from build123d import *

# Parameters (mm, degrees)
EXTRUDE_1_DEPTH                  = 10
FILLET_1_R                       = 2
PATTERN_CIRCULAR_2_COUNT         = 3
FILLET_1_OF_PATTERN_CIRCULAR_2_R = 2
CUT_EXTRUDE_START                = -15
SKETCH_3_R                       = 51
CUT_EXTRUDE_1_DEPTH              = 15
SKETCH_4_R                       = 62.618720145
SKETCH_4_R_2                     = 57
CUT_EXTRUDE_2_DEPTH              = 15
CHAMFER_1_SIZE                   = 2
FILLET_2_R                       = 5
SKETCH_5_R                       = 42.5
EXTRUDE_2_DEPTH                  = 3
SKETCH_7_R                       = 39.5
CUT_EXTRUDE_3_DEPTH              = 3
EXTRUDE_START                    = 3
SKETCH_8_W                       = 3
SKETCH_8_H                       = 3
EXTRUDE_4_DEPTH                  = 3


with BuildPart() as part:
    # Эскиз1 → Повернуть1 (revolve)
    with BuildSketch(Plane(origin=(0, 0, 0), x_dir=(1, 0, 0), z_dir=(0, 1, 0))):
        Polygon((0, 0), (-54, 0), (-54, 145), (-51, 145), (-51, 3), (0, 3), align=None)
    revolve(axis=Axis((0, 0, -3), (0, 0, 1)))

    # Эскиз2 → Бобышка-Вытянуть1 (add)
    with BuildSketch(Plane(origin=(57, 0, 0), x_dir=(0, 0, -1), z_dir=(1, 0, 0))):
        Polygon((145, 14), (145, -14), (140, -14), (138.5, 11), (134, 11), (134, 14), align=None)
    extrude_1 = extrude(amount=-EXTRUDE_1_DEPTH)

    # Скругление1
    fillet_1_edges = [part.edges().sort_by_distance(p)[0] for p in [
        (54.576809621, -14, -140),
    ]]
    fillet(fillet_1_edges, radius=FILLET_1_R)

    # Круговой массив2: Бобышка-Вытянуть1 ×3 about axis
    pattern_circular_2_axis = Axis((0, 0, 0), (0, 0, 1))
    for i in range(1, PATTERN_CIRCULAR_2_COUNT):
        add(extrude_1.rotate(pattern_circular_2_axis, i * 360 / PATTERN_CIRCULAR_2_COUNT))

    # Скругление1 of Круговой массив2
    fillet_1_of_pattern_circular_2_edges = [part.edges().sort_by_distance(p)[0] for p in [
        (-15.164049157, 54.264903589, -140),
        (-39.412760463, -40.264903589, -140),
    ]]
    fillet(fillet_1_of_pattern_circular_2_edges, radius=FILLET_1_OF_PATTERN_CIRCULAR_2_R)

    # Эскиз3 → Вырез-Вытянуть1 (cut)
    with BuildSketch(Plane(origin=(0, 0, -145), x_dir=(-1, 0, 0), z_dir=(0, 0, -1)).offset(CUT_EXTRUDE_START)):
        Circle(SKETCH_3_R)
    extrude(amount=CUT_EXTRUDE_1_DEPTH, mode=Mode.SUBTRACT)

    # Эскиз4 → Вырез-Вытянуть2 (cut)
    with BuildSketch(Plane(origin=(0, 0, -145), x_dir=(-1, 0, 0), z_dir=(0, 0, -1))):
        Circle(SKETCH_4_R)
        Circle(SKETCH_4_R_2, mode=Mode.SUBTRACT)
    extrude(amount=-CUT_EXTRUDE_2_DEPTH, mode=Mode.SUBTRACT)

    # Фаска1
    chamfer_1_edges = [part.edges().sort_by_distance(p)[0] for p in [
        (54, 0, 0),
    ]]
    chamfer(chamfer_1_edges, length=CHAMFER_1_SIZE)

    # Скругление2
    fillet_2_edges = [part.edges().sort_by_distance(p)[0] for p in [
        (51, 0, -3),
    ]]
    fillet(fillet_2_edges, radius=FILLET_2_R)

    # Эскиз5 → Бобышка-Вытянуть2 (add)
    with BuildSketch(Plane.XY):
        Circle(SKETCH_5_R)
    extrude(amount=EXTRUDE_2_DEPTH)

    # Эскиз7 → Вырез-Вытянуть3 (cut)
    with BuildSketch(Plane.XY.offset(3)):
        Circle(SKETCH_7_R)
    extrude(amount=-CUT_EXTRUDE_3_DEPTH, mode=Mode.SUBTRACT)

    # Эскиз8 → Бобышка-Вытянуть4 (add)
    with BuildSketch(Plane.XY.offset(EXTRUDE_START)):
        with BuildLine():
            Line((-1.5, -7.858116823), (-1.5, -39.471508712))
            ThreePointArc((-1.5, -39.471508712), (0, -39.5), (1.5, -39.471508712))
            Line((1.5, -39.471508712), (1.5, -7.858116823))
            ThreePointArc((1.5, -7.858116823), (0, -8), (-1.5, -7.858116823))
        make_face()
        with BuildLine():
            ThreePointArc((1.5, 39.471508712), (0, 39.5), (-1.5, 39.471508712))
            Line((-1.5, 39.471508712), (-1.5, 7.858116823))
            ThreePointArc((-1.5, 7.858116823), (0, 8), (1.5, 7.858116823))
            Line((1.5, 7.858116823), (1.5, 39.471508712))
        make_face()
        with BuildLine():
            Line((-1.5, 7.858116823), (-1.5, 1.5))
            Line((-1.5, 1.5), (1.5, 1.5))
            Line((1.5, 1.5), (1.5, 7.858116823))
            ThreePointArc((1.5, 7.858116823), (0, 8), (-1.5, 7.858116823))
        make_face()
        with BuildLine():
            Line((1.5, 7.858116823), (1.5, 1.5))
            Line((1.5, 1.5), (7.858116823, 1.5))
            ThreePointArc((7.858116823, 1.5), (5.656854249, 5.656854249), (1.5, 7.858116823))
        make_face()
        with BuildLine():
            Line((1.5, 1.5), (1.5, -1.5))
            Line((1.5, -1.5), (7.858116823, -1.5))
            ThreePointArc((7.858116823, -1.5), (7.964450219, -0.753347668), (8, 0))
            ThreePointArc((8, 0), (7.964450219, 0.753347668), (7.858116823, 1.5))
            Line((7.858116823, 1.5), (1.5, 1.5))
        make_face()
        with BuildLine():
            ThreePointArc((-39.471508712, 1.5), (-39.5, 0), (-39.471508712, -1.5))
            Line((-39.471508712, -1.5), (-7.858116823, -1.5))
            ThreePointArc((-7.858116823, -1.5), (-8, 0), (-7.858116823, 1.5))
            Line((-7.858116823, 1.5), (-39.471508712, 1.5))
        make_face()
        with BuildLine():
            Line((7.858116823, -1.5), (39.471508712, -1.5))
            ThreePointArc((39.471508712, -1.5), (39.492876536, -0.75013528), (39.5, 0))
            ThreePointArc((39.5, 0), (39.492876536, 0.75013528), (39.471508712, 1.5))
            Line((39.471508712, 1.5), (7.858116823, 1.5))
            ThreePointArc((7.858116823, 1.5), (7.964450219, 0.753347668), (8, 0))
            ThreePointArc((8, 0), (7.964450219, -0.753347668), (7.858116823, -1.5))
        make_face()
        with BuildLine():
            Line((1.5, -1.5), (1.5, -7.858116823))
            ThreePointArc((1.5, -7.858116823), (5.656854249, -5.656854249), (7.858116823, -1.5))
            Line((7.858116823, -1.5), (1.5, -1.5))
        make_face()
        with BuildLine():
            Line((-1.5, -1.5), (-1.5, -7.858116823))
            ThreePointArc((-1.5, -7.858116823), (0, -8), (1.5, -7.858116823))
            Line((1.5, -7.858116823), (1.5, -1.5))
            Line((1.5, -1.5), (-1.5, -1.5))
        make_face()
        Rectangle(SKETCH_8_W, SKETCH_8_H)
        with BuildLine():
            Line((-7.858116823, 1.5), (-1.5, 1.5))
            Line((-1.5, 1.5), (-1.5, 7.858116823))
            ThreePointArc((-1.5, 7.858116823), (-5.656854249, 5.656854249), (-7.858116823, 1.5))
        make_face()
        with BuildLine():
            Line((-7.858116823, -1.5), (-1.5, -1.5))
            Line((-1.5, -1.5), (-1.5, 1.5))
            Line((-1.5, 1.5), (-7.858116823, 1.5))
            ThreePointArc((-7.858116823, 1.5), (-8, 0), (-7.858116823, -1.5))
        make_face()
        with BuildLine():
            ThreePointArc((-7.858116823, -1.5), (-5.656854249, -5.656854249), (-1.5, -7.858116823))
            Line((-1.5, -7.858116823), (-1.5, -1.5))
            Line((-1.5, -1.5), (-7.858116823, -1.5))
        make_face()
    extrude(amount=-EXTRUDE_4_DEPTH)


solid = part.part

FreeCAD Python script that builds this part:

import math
import FreeCAD as App
import Part
import Sketcher
from FreeCAD import Vector


def edges_at(feature, points):
    """Names of the edges that pass closest to the given points."""
    edges = feature.Shape.Edges
    near = lambda p: min(range(len(edges)), key=lambda i: edges[i].distToShape(Part.Vertex(*p))[0])
    return sorted({f"Edge{near(p) + 1}" for p in points})

doc = App.newDocument("Part")
body = doc.addObject("PartDesign::Body", "Body")

# Sketch on XZ plane
sketch1 = body.newObject("Sketcher::SketchObject", "Sketch")
sketch1.AttachmentSupport = (doc.getObject("XZ_Plane"), [""])
sketch1.MapMode = "FlatFace"
sketch1.addGeometry(Part.LineSegment(Vector(-54, 0, 0), Vector(0, 0, 0)), False)
sketch1.addGeometry(Part.LineSegment(Vector(0, 0, 0), Vector(0, -3, 0)), False)
sketch1.addGeometry(Part.LineSegment(Vector(0, -3, 0), Vector(-51, -3, 0)), False)
sketch1.addGeometry(Part.LineSegment(Vector(-51, -3, 0), Vector(-51, -145, 0)), False)
sketch1.addGeometry(Part.LineSegment(Vector(-51, -145, 0), Vector(-54, -145, 0)), False)
sketch1.addGeometry(Part.LineSegment(Vector(-54, -145, 0), Vector(-54, 0, 0)), False)
sketch1.addConstraint(Sketcher.Constraint("Coincident", 0, 2, 1, 1))
sketch1.addConstraint(Sketcher.Constraint("Coincident", 1, 2, 2, 1))
sketch1.addConstraint(Sketcher.Constraint("Coincident", 2, 2, 3, 1))
sketch1.addConstraint(Sketcher.Constraint("Coincident", 3, 2, 4, 1))
sketch1.addConstraint(Sketcher.Constraint("Coincident", 4, 2, 5, 1))
sketch1.addConstraint(Sketcher.Constraint("Coincident", 5, 2, 0, 1))
sketch1.addConstraint(Sketcher.Constraint("Horizontal", 0))
sketch1.addConstraint(Sketcher.Constraint("Vertical", 1))
sketch1.addConstraint(Sketcher.Constraint("Horizontal", 2))
sketch1.addConstraint(Sketcher.Constraint("Vertical", 3))
sketch1.addConstraint(Sketcher.Constraint("Horizontal", 4))
sketch1.addConstraint(Sketcher.Constraint("Vertical", 5))
sketch1.addConstraint(Sketcher.Constraint("Coincident", 0, 2, -1, 1))
sketch1.addConstraint(Sketcher.Constraint("Equal", 4, 1))
sketch1.addConstraint(Sketcher.Constraint("DistanceX", 0, 1, 0, 2, 54.0))
sketch1.addConstraint(Sketcher.Constraint("DistanceX", 2, 2, 2, 1, 51.0))
sketch1.addConstraint(Sketcher.Constraint("DistanceY", 3, 2, 3, 1, 142.0))
revolution = body.newObject("PartDesign::Revolution", "Revolution")
revolution.Profile = sketch1
revolution.ReferenceAxis = (sketch1, ["V_Axis"])
revolution.Angle = 360

# Sketch on YZ plane
sketch2 = body.newObject("Sketcher::SketchObject", "Sketch001")
sketch2.AttachmentSupport = (doc.getObject("YZ_Plane"), [""])
sketch2.MapMode = "FlatFace"
sketch2.AttachmentOffset = App.Placement(Vector(0, 0, 57), App.Rotation())
sketch2.addGeometry(Part.LineSegment(Vector(-14, -145, 0), Vector(14, -145, 0)), False)
sketch2.addGeometry(Part.LineSegment(Vector(14, -145, 0), Vector(14, -134, 0)), False)
sketch2.addGeometry(Part.LineSegment(Vector(14, -134, 0), Vector(11, -134, 0)), False)
sketch2.addGeometry(Part.LineSegment(Vector(11, -134, 0), Vector(11, -138.5, 0)), False)
sketch2.addGeometry(Part.LineSegment(Vector(11, -138.5, 0), Vector(-14, -140, 0)), False)
sketch2.addGeometry(Part.LineSegment(Vector(-14, -140, 0), Vector(-14, -145, 0)), False)
sketch2.addConstraint(Sketcher.Constraint("Coincident", 0, 2, 1, 1))
sketch2.addConstraint(Sketcher.Constraint("Coincident", 1, 2, 2, 1))
sketch2.addConstraint(Sketcher.Constraint("Coincident", 2, 2, 3, 1))
sketch2.addConstraint(Sketcher.Constraint("Coincident", 3, 2, 4, 1))
sketch2.addConstraint(Sketcher.Constraint("Coincident", 4, 2, 5, 1))
sketch2.addConstraint(Sketcher.Constraint("Coincident", 5, 2, 0, 1))
sketch2.addConstraint(Sketcher.Constraint("Horizontal", 0))
sketch2.addConstraint(Sketcher.Constraint("Vertical", 1))
sketch2.addConstraint(Sketcher.Constraint("Horizontal", 2))
sketch2.addConstraint(Sketcher.Constraint("Vertical", 3))
sketch2.addConstraint(Sketcher.Constraint("Vertical", 5))
sketch2.addConstraint(Sketcher.Constraint("DistanceX", 0, 1, 0, 2, 28.0))
sketch2.addConstraint(Sketcher.Constraint("DistanceX", 2, 2, 2, 1, 3.0))
sketch2.addConstraint(Sketcher.Constraint("DistanceY", 1, 1, 1, 2, 11.0))
sketch2.addConstraint(Sketcher.Constraint("DistanceY", 5, 2, 5, 1, 5.0))
sketch2.addConstraint(Sketcher.Constraint("DistanceY", 3, 2, 3, 1, 4.5))
sketch2.addConstraint(Sketcher.Constraint("DistanceX", -1, 1, 0, 2, 14.0))
sketch2.addConstraint(Sketcher.Constraint("DistanceY", 0, 2, -1, 1, 145.0))
pad1 = body.newObject("PartDesign::Pad", "Pad")
pad1.Profile = sketch2
pad1.Length = 10
pad1.Reversed = True
doc.recompute()

fillet = body.newObject("PartDesign::Fillet", "Fillet")
fillet.Base = (pad1, edges_at(pad1, [(54.577, -14, -140)]))
fillet.Radius = 2
doc.recompute()

polarpattern = body.newObject("PartDesign::PolarPattern", "PolarPattern")
polarpattern.Originals = [pad1]
polarpattern.Axis = (doc.getObject("Z_Axis"), [""])
polarpattern.Angle = 360
polarpattern.Occurrences = 3
body.Tip = polarpattern
doc.recompute()

fillet2 = body.newObject("PartDesign::Fillet", "Fillet001")
fillet2.Base = (polarpattern, edges_at(polarpattern, [(-15.164, 54.265, -140), (-39.413, -40.265, -140)]))
fillet2.Radius = 2

# Sketch on XY plane
sketch3 = body.newObject("Sketcher::SketchObject", "Sketch002")
sketch3.AttachmentSupport = (doc.getObject("XY_Plane"), [""])
sketch3.MapMode = "FlatFace"
sketch3.AttachmentOffset = App.Placement(Vector(0, 0, -130), App.Rotation())
sketch3.addGeometry(Part.Circle(Vector(0, 0, 0), Vector(0, 0, 1), 51), False)
sketch3.addConstraint(Sketcher.Constraint("Coincident", 0, 3, -1, 1))
sketch3.addConstraint(Sketcher.Constraint("Diameter", 0, 102.0))
pocket1 = body.newObject("PartDesign::Pocket", "Pocket")
pocket1.Profile = sketch3
pocket1.Length = 15

# Sketch on XY plane
sketch4 = body.newObject("Sketcher::SketchObject", "Sketch003")
sketch4.AttachmentSupport = (doc.getObject("XY_Plane"), [""])
sketch4.MapMode = "FlatFace"
sketch4.AttachmentOffset = App.Placement(Vector(0, 0, -145), App.Rotation())
sketch4.addGeometry(Part.Circle(Vector(0, 0, 0), Vector(0, 0, 1), 62.61872), False)
sketch4.addGeometry(Part.Circle(Vector(0, 0, 0), Vector(0, 0, 1), 57), False)
sketch4.addConstraint(Sketcher.Constraint("Coincident", 0, 3, -1, 1))
sketch4.addConstraint(Sketcher.Constraint("Coincident", 1, 3, -1, 1))
sketch4.addConstraint(Sketcher.Constraint("Diameter", 1, 114.0))
sketch4.addConstraint(Sketcher.Constraint("Diameter", 0, 125.23744))
pocket2 = body.newObject("PartDesign::Pocket", "Pocket001")
pocket2.Profile = sketch4
pocket2.Length = 15
pocket2.Reversed = True
doc.recompute()

chamfer = body.newObject("PartDesign::Chamfer", "Chamfer")
chamfer.Base = (pocket2, edges_at(pocket2, [(54, 0, 0)]))
chamfer.Size = 2
doc.recompute()

fillet3 = body.newObject("PartDesign::Fillet", "Fillet002")
fillet3.Base = (chamfer, edges_at(chamfer, [(51, 0, -3)]))
fillet3.Radius = 5

# Sketch on XY plane
sketch5 = body.newObject("Sketcher::SketchObject", "Sketch004")
sketch5.AttachmentSupport = (doc.getObject("XY_Plane"), [""])
sketch5.MapMode = "FlatFace"
sketch5.addGeometry(Part.Circle(Vector(0, 0, 0), Vector(0, 0, 1), 42.5), False)
sketch5.addConstraint(Sketcher.Constraint("Coincident", 0, 3, -1, 1))
sketch5.addConstraint(Sketcher.Constraint("Diameter", 0, 85.0))
pad2 = body.newObject("PartDesign::Pad", "Pad001")
pad2.Profile = sketch5
pad2.Length = 3

# Sketch on XY plane
sketch6 = body.newObject("Sketcher::SketchObject", "Sketch005")
sketch6.AttachmentSupport = (doc.getObject("XY_Plane"), [""])
sketch6.MapMode = "FlatFace"
sketch6.AttachmentOffset = App.Placement(Vector(0, 0, 3), App.Rotation())
sketch6.addGeometry(Part.Circle(Vector(0, 0, 0), Vector(0, 0, 1), 39.5), False)
sketch6.addConstraint(Sketcher.Constraint("Coincident", 0, 3, -1, 1))
sketch6.addConstraint(Sketcher.Constraint("Diameter", 0, 79.0))
pocket3 = body.newObject("PartDesign::Pocket", "Pocket002")
pocket3.Profile = sketch6
pocket3.Length = 3

# Sketch on XY plane
sketch7 = body.newObject("Sketcher::SketchObject", "Sketch006")
sketch7.AttachmentSupport = (doc.getObject("XY_Plane"), [""])
sketch7.MapMode = "FlatFace"
sketch7.AttachmentOffset = App.Placement(Vector(0, 0, 3), App.Rotation())
sketch7.addGeometry(Part.LineSegment(Vector(-7.858117, 1.5, 0), Vector(-39.471509, 1.5, 0)), False)
sketch7.addGeometry(Part.ArcOfCircle(Part.Circle(Vector(0, 0, 0), Vector(0, 0, 1), 39.5), math.radians(177.823688), math.radians(182.176312)), False)
sketch7.addGeometry(Part.LineSegment(Vector(-39.471509, -1.5, 0), Vector(-7.858117, -1.5, 0)), False)
sketch7.addGeometry(Part.ArcOfCircle(Part.Circle(Vector(0, 0, 0), Vector(0, 0, 1), 8), math.radians(-169.193077), math.radians(-100.806923)), False)
sketch7.addGeometry(Part.LineSegment(Vector(-1.5, -7.858117, 0), Vector(-1.5, -39.471509, 0)), False)
sketch7.addGeometry(Part.ArcOfCircle(Part.Circle(Vector(0, 0, 0), Vector(0, 0, 1), 39.5), math.radians(-92.176312), math.radians(-87.823688)), False)
sketch7.addGeometry(Part.LineSegment(Vector(1.5, -39.471509, 0), Vector(1.5, -7.858117, 0)), False)
sketch7.addGeometry(Part.ArcOfCircle(Part.Circle(Vector(0, 0, 0), Vector(0, 0, 1), 8), math.radians(-79.193077), math.radians(-10.806923)), False)
sketch7.addGeometry(Part.LineSegment(Vector(7.858117, -1.5, 0), Vector(39.471509, -1.5, 0)), False)
sketch7.addGeometry(Part.ArcOfCircle(Part.Circle(Vector(0.000002, 0, 0), Vector(0, 0, 1), 39.499998), math.radians(-2.176312), math.radians(0)), False)
sketch7.addGeometry(Part.ArcOfCircle(Part.Circle(Vector(0.000002, 0, 0), Vector(0, 0, 1), 39.499998), math.radians(0), math.radians(2.176312)), False)
sketch7.addGeometry(Part.LineSegment(Vector(39.471509, 1.5, 0), Vector(7.858117, 1.5, 0)), False)
sketch7.addGeometry(Part.ArcOfCircle(Part.Circle(Vector(0, 0, 0), Vector(0, 0, 1), 8), math.radians(10.806923), math.radians(79.193077)), False)
sketch7.addGeometry(Part.LineSegment(Vector(1.5, 7.858117, 0), Vector(1.5, 39.471509, 0)), False)
sketch7.addGeometry(Part.ArcOfCircle(Part.Circle(Vector(0, 0, 0), Vector(0, 0, 1), 39.5), math.radians(87.823688), math.radians(92.176312)), False)
sketch7.addGeometry(Part.LineSegment(Vector(-1.5, 39.471509, 0), Vector(-1.5, 7.858117, 0)), False)
sketch7.addGeometry(Part.ArcOfCircle(Part.Circle(Vector(0, 0, 0), Vector(0, 0, 1), 8), math.radians(100.806923), math.radians(169.193077)), False)
sketch7.addConstraint(Sketcher.Constraint("Coincident", 0, 2, 1, 1))
sketch7.addConstraint(Sketcher.Constraint("Coincident", 1, 2, 2, 1))
sketch7.addConstraint(Sketcher.Constraint("Coincident", 2, 2, 3, 1))
sketch7.addConstraint(Sketcher.Constraint("Coincident", 3, 2, 4, 1))
sketch7.addConstraint(Sketcher.Constraint("Coincident", 4, 2, 5, 1))
sketch7.addConstraint(Sketcher.Constraint("Coincident", 5, 2, 6, 1))
sketch7.addConstraint(Sketcher.Constraint("Coincident", 6, 2, 7, 1))
sketch7.addConstraint(Sketcher.Constraint("Coincident", 7, 2, 8, 1))
sketch7.addConstraint(Sketcher.Constraint("Coincident", 8, 2, 9, 1))
sketch7.addConstraint(Sketcher.Constraint("Tangent", 9, 2, 10, 1))
sketch7.addConstraint(Sketcher.Constraint("Coincident", 10, 2, 11, 1))
sketch7.addConstraint(Sketcher.Constraint("Coincident", 11, 2, 12, 1))
sketch7.addConstraint(Sketcher.Constraint("Coincident", 12, 2, 13, 1))
sketch7.addConstraint(Sketcher.Constraint("Coincident", 13, 2, 14, 1))
sketch7.addConstraint(Sketcher.Constraint("Coincident", 14, 2, 15, 1))
sketch7.addConstraint(Sketcher.Constraint("Coincident", 15, 2, 16, 1))
sketch7.addConstraint(Sketcher.Constraint("Coincident", 16, 2, 0, 1))
sketch7.addConstraint(Sketcher.Constraint("Horizontal", 0))
sketch7.addConstraint(Sketcher.Constraint("Horizontal", 2))
sketch7.addConstraint(Sketcher.Constraint("Vertical", 4))
sketch7.addConstraint(Sketcher.Constraint("Vertical", 6))
sketch7.addConstraint(Sketcher.Constraint("Horizontal", 8))
sketch7.addConstraint(Sketcher.Constraint("Horizontal", 11))
sketch7.addConstraint(Sketcher.Constraint("Vertical", 13))
sketch7.addConstraint(Sketcher.Constraint("Vertical", 15))
sketch7.addConstraint(Sketcher.Constraint("Coincident", 1, 3, -1, 1))
sketch7.addConstraint(Sketcher.Constraint("Coincident", 3, 3, -1, 1))
sketch7.addConstraint(Sketcher.Constraint("Coincident", 5, 3, -1, 1))
sketch7.addConstraint(Sketcher.Constraint("Coincident", 7, 3, -1, 1))
sketch7.addConstraint(Sketcher.Constraint("Coincident", 9, 3, -1, 1))
sketch7.addConstraint(Sketcher.Constraint("Coincident", 12, 3, -1, 1))
sketch7.addConstraint(Sketcher.Constraint("Coincident", 14, 3, -1, 1))
sketch7.addConstraint(Sketcher.Constraint("Coincident", 16, 3, -1, 1))
sketch7.addConstraint(Sketcher.Constraint("Equal", 1, 5))
sketch7.addConstraint(Sketcher.Constraint("Equal", 3, 7))
sketch7.addConstraint(Sketcher.Constraint("Equal", 5, 9))
sketch7.addConstraint(Sketcher.Constraint("Equal", 9, 10))
sketch7.addConstraint(Sketcher.Constraint("Equal", 7, 12))
sketch7.addConstraint(Sketcher.Constraint("Equal", 10, 14))
sketch7.addConstraint(Sketcher.Constraint("Equal", 12, 16))
sketch7.addConstraint(Sketcher.Constraint("PointOnObject", 9, 2, -1))
sketch7.addConstraint(Sketcher.Constraint("Horizontal", 4, 2, 5, 2))
sketch7.addConstraint(Sketcher.Constraint("Horizontal", 2, 2, 7, 2))
sketch7.addConstraint(Sketcher.Constraint("Horizontal", 0, 2, 10, 2))
sketch7.addConstraint(Sketcher.Constraint("Horizontal", 13, 2, 14, 2))
sketch7.addConstraint(Sketcher.Constraint("Vertical", 0, 2, 1, 2))
sketch7.addConstraint(Sketcher.Constraint("Vertical", 6, 2, 12, 2))
sketch7.addConstraint(Sketcher.Constraint("Equal", 11, 4))
sketch7.addConstraint(Sketcher.Constraint("Radius", 3, 8.0))
sketch7.addConstraint(Sketcher.Constraint("Radius", 1, 39.5))
sketch7.addConstraint(Sketcher.Constraint("DistanceY", 1, 2, 0, 2, 3.0))
pad3 = body.newObject("PartDesign::Pad", "Pad002")
pad3.Profile = sketch7
pad3.Length = 3
pad3.Reversed = True

doc.recompute()
